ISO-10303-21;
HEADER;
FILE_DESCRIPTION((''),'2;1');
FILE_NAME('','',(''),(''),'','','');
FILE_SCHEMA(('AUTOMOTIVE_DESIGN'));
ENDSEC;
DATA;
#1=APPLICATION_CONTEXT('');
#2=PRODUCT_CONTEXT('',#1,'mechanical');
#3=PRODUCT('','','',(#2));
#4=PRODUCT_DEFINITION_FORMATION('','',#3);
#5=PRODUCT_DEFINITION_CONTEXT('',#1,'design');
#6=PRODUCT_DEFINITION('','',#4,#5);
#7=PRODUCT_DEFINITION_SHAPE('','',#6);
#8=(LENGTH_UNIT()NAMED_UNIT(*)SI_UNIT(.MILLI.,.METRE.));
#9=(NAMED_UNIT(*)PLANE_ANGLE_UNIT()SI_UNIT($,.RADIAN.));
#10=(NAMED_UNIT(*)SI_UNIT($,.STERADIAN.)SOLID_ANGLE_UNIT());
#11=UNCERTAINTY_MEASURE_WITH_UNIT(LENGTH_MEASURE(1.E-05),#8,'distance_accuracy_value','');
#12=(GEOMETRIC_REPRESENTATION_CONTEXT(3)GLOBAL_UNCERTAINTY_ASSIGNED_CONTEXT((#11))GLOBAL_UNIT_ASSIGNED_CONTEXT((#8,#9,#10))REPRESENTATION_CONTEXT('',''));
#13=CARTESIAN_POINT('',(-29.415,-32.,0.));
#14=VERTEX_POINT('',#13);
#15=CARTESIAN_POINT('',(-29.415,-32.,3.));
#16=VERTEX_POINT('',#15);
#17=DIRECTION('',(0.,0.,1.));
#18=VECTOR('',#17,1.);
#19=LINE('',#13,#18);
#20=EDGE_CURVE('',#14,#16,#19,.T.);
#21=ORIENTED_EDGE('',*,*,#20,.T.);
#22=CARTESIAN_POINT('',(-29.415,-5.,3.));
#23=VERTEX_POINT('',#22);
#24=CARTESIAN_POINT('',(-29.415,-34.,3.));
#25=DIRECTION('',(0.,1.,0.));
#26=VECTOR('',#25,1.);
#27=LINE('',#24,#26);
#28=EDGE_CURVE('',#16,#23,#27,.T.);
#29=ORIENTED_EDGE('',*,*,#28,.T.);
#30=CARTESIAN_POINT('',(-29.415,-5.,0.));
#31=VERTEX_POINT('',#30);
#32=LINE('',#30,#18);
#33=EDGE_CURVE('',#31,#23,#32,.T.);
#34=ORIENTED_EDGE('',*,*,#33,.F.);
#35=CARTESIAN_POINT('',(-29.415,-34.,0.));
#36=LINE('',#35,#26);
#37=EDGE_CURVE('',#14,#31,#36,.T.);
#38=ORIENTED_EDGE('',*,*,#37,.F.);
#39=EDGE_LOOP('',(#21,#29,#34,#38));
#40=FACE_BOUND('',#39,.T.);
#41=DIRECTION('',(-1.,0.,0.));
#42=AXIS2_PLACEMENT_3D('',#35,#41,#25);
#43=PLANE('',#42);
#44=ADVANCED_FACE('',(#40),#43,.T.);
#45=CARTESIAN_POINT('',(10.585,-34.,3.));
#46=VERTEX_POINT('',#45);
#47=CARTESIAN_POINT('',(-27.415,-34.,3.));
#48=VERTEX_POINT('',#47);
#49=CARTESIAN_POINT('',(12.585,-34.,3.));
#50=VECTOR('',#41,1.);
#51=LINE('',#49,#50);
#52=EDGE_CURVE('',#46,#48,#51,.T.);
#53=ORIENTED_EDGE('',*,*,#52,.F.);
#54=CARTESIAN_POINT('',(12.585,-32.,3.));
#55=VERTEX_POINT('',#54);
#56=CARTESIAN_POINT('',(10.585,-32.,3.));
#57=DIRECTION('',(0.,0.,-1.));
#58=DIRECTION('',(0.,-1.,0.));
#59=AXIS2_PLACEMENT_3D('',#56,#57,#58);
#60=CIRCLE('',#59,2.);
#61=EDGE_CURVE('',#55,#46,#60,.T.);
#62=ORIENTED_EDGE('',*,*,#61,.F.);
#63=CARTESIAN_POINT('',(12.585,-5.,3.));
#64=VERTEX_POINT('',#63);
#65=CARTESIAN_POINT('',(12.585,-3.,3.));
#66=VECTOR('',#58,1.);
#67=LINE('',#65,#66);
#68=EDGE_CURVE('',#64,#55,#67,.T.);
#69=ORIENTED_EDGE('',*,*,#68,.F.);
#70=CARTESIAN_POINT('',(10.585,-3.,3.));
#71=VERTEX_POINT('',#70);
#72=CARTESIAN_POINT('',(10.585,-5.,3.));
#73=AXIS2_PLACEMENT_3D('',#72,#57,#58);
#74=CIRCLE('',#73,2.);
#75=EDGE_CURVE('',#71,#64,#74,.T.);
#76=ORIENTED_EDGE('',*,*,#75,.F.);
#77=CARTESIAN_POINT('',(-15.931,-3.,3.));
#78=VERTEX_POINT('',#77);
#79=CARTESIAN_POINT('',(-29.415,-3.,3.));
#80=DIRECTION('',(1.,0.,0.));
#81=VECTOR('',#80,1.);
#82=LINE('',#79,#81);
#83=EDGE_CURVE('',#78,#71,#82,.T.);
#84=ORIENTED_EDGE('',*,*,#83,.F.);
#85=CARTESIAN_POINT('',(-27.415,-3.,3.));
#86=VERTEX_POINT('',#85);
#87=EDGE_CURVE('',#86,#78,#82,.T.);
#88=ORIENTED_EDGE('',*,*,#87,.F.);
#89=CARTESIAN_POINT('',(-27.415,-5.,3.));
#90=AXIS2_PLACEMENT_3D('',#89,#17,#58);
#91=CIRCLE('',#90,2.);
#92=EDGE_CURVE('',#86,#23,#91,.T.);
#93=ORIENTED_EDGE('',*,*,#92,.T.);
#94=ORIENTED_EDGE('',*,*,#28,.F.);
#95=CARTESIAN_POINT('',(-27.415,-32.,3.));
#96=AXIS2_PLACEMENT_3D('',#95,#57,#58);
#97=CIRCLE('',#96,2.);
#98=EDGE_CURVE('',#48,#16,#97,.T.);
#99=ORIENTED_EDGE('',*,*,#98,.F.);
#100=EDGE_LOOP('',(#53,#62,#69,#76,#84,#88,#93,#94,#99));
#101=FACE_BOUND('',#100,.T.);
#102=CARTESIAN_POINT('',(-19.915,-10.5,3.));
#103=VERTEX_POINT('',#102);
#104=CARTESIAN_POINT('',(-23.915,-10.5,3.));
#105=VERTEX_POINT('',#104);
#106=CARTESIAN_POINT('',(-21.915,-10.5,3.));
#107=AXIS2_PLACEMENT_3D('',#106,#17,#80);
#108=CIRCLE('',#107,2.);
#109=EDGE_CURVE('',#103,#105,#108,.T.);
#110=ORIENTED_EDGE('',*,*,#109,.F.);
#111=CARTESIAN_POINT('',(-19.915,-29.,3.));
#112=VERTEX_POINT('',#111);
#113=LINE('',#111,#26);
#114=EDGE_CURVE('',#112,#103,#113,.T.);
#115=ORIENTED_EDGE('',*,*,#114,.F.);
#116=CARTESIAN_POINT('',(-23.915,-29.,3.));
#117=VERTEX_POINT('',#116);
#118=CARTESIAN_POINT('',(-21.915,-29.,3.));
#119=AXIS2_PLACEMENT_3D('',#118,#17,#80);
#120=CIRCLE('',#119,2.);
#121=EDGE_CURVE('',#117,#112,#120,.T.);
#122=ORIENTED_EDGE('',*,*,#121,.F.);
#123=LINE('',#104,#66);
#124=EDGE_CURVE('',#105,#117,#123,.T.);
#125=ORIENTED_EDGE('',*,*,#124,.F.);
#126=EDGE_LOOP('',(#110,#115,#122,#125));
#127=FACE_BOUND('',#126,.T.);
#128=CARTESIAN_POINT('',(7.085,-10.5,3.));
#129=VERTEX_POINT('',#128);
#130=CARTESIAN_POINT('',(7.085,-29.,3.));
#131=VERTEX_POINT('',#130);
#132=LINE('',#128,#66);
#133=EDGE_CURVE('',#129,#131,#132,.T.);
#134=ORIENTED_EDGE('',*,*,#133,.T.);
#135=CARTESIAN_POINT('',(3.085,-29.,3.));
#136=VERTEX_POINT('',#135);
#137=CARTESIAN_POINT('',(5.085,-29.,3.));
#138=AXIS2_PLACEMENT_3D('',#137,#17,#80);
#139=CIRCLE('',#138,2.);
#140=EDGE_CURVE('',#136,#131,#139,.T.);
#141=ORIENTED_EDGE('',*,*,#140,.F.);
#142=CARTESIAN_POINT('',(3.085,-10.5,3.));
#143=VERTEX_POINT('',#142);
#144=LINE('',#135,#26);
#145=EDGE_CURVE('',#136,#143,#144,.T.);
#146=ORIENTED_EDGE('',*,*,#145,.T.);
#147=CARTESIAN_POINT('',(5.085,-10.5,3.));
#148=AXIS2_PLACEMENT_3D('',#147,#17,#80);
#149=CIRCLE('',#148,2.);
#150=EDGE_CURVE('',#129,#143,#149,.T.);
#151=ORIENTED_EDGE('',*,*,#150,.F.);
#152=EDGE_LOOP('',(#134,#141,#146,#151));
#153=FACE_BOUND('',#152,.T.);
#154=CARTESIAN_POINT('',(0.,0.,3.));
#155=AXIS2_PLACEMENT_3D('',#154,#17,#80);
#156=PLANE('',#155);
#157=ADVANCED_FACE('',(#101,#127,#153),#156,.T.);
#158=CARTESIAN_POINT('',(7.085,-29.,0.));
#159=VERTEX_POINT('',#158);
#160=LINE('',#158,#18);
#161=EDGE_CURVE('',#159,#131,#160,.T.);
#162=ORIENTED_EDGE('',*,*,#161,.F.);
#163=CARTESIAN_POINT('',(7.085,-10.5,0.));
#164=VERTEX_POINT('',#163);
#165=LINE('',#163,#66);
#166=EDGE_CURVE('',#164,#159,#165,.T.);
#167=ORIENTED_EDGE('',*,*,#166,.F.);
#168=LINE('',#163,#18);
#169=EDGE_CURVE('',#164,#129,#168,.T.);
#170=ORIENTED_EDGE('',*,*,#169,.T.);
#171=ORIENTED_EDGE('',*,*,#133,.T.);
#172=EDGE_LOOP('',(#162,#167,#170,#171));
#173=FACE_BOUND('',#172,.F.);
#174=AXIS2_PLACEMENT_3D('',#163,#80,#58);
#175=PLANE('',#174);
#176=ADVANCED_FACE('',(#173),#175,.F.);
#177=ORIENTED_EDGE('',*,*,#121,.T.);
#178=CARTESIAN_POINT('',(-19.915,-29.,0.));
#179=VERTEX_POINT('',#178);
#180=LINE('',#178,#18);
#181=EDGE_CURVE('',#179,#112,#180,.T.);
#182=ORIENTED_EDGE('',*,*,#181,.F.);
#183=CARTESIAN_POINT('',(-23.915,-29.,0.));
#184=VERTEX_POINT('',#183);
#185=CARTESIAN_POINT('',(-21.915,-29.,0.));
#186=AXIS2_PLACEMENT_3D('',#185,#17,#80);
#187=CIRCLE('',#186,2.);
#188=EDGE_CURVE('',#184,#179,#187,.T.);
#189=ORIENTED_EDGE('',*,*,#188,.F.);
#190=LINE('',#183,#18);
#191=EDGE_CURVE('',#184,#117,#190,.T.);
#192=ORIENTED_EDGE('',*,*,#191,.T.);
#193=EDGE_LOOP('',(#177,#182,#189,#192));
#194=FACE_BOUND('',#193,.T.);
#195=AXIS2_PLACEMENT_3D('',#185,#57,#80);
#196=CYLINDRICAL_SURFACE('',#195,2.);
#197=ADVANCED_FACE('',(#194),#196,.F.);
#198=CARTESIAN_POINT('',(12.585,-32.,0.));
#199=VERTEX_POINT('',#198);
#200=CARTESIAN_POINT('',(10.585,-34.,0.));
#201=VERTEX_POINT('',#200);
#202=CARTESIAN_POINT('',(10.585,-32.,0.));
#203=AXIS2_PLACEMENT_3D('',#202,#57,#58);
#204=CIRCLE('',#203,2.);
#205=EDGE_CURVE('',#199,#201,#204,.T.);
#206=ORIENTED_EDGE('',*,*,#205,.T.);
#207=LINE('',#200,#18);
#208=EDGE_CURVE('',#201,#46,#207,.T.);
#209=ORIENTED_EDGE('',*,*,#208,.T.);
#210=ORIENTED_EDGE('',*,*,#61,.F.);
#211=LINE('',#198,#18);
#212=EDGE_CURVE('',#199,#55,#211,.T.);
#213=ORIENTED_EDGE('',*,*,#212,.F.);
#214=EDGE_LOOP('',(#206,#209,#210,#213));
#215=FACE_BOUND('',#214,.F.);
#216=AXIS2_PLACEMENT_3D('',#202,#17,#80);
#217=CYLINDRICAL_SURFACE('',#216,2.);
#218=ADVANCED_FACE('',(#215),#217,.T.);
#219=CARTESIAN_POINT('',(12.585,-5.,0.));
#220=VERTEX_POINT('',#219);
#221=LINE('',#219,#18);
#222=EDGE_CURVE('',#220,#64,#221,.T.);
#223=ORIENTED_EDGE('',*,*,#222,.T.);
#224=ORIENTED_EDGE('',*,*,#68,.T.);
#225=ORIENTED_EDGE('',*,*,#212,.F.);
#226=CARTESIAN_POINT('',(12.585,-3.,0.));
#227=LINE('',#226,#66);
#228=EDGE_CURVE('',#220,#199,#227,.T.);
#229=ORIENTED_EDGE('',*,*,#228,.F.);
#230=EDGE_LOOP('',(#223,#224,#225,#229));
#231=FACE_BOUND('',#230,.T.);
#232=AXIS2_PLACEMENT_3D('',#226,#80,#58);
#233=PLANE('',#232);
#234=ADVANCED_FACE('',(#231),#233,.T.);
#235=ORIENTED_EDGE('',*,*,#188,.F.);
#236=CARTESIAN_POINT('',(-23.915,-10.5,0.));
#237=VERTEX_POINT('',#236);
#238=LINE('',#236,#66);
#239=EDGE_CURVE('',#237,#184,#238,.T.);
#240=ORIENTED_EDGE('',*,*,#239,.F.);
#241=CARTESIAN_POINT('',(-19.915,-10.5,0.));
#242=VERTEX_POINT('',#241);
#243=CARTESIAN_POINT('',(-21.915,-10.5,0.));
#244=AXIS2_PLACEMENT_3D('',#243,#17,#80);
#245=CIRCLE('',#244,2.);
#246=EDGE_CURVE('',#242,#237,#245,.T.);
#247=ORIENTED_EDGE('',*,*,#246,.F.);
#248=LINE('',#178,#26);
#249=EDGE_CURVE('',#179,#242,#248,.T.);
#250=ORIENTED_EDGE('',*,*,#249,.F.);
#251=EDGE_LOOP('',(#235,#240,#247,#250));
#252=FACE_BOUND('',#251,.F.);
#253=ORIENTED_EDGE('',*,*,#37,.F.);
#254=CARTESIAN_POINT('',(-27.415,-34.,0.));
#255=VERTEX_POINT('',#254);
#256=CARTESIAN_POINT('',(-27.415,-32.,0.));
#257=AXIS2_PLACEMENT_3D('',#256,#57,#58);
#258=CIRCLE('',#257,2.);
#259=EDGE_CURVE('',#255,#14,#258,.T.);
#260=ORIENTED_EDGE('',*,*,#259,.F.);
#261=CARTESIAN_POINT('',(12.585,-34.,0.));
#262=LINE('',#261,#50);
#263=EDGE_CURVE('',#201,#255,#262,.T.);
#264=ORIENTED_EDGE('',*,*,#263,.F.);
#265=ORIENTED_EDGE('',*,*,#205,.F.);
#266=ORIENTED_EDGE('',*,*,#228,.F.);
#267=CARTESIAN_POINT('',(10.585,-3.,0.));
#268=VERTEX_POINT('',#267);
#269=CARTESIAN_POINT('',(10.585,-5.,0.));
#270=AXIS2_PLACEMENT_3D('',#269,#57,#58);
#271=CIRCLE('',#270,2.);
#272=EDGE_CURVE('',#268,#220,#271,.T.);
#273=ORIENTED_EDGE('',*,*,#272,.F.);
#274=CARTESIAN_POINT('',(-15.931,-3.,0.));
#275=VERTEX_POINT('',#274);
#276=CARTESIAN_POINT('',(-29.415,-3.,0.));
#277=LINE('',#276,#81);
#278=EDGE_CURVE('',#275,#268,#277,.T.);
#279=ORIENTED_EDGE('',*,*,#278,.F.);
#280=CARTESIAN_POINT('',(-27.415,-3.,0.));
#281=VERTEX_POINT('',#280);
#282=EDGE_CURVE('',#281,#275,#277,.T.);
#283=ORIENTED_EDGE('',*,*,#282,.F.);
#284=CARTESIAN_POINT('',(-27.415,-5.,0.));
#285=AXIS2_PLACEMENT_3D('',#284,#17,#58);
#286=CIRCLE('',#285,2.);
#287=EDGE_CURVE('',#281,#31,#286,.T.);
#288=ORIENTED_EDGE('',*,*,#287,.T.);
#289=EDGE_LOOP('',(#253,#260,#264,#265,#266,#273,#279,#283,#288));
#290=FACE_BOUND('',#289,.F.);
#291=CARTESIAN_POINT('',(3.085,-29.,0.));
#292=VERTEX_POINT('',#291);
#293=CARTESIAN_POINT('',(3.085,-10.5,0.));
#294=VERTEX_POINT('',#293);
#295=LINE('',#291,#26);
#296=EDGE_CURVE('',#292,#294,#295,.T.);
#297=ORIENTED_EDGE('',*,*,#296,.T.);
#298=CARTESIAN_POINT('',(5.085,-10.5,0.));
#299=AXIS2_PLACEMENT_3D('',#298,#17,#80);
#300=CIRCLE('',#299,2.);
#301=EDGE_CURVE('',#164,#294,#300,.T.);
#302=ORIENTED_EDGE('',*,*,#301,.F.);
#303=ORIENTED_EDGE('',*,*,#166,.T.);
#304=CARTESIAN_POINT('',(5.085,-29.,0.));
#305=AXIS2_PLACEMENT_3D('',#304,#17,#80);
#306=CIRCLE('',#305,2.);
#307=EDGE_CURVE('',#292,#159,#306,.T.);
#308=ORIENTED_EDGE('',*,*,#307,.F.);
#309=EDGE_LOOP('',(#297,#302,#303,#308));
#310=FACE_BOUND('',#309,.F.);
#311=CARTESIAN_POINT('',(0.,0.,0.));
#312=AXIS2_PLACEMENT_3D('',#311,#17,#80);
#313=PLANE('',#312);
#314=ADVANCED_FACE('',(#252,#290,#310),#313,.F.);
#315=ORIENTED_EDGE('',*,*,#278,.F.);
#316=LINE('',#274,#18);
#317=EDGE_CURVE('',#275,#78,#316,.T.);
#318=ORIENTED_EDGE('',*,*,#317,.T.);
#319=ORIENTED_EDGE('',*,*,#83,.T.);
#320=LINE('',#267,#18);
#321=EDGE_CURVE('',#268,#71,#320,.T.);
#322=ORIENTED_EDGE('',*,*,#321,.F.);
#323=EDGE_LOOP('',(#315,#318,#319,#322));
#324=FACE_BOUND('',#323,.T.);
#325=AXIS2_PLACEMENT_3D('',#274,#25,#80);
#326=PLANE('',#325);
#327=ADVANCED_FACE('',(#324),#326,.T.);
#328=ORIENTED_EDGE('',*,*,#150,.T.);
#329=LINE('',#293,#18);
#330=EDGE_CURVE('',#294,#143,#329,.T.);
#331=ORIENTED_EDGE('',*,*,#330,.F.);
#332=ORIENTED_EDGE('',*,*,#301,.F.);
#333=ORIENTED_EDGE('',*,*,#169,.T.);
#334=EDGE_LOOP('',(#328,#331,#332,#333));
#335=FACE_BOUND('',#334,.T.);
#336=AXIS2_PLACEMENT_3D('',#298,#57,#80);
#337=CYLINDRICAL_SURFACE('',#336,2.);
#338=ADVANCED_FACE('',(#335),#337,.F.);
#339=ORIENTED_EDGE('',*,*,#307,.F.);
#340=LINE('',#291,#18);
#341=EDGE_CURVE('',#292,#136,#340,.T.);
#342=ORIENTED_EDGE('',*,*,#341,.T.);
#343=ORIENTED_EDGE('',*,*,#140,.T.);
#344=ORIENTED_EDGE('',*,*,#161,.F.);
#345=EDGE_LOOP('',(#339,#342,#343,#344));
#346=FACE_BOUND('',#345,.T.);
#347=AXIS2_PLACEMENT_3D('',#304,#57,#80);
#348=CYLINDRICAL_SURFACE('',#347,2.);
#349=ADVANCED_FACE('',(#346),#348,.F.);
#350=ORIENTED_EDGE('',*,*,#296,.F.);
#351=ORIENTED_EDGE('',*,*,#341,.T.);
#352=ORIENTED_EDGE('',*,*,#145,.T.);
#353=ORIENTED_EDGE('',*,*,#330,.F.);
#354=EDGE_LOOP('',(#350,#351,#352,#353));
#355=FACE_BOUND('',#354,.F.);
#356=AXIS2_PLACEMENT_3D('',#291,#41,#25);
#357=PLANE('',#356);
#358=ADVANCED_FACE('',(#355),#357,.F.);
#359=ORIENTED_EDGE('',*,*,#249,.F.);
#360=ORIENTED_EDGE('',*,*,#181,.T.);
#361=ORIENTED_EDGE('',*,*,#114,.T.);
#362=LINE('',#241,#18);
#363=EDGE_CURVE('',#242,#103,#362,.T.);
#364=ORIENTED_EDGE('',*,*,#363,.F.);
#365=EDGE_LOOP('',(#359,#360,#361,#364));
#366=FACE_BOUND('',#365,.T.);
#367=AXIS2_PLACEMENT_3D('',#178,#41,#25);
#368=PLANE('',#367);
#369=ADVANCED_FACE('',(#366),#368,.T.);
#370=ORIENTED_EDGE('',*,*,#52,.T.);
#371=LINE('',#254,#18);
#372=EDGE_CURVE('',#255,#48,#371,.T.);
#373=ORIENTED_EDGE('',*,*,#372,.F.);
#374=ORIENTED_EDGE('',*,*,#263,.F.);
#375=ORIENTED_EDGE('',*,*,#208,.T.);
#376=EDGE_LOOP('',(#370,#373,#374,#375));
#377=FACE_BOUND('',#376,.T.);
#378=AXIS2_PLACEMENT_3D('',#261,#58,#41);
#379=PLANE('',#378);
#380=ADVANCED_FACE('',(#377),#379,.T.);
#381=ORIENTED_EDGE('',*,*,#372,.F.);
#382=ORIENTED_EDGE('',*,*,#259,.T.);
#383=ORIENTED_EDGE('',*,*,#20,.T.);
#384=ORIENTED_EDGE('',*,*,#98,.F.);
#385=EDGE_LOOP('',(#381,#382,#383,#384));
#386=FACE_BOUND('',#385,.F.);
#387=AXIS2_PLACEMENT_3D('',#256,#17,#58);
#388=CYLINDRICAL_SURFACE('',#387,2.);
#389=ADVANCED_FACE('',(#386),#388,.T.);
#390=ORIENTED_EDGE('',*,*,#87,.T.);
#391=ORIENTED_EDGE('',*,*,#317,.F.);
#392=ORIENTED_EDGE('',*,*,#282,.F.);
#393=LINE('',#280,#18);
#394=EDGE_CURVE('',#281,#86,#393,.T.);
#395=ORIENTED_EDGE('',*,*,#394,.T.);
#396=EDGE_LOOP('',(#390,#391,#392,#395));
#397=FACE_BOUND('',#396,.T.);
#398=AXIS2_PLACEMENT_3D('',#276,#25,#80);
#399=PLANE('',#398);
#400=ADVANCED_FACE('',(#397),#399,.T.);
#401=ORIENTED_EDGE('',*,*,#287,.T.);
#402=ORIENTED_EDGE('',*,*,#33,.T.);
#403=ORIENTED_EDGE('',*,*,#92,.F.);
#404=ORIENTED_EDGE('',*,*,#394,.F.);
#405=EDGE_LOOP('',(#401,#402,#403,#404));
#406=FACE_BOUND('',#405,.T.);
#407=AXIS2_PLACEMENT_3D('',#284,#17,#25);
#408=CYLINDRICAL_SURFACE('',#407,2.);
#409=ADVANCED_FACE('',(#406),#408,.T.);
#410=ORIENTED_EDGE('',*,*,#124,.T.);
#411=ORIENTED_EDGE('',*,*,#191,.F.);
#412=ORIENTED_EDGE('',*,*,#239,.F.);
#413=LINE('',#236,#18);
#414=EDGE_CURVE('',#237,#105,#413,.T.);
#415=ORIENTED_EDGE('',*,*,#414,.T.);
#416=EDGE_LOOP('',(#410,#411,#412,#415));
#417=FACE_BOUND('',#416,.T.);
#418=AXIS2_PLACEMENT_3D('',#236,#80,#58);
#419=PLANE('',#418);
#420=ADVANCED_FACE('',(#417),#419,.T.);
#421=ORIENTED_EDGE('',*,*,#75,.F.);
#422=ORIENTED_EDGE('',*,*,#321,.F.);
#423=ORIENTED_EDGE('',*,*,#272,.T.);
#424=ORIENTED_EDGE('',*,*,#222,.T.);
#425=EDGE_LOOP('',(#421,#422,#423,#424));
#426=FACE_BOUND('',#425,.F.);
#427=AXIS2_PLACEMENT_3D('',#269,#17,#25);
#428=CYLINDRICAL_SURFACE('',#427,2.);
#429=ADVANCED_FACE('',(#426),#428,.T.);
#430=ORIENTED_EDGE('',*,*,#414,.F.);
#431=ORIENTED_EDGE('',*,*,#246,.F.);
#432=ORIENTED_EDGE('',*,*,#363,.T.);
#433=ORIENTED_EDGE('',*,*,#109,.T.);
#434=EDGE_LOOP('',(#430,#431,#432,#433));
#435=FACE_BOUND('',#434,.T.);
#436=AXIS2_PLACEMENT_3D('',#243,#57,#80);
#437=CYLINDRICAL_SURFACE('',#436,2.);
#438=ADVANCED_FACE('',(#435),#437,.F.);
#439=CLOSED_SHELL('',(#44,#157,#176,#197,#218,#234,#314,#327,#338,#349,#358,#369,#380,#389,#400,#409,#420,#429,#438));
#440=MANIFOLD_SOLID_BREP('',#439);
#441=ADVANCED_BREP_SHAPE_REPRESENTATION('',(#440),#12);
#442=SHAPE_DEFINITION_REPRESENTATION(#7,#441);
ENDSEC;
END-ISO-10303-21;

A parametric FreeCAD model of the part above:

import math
import FreeCAD as App
import Part
import Sketcher
Q = App.Units.Quantity


def edges_at(feature, points):
    """Names of the edges that pass closest to the given points."""
    edges = feature.Shape.Edges
    near = lambda p: min(range(len(edges)), key=lambda i: edges[i].distToShape(Part.Vertex(*p))[0])
    return sorted({f"Edge{near(p) + 1}" for p in points})


def add_polygon(sketch, points):
    """Adds a closed chain of lines whose ends are joined by coincident constraints."""
    first, n = sketch.GeometryCount, len(points)
    for a, b in zip(points, points[1:] + points[:1]):
        sketch.addGeometry(Part.LineSegment(App.Vector(*a, 0), App.Vector(*b, 0)), False)
    for i in range(n):
        sketch.addConstraint(Sketcher.Constraint("Coincident", first + i, 2, first + (i + 1) % n, 1))

doc = App.newDocument("Part")
body = doc.addObject("PartDesign::Body", "Body")

# Sketch on XY plane
sketch1 = body.newObject("Sketcher::SketchObject", "Sketch")
sketch1.AttachmentSupport = (doc.getObject("XY_Plane"), [""])
sketch1.MapMode = "FlatFace"
add_polygon(sketch1, [(12.6, -3), (-29.4, -3), (-29.4, -34), (12.6, -34)])  # lines 0-3
sketch1.addGeometry(Part.LineSegment(App.Vector(-19.9, -10.5, 0), App.Vector(-19.9, -29, 0)), False)  # 4
sketch1.addGeometry(Part.ArcOfCircle(Part.Circle(App.Vector(-21.9, -29, 0), App.Vector(0, 0, 1), 2), math.radians(180), math.radians(360)), False)  # 5
sketch1.addGeometry(Part.LineSegment(App.Vector(-23.9, -29, 0), App.Vector(-23.9, -10.5, 0)), False)  # 6
sketch1.addGeometry(Part.ArcOfCircle(Part.Circle(App.Vector(-21.9, -10.5, 0), App.Vector(0, 0, 1), 2), math.radians(0), math.radians(180)), False)  # 7
sketch1.addGeometry(Part.LineSegment(App.Vector(7.1, -10.5, 0), App.Vector(7.1, -29, 0)), False)  # 8
sketch1.addGeometry(Part.ArcOfCircle(Part.Circle(App.Vector(5.1, -29, 0), App.Vector(0, 0, 1), 2), math.radians(180), math.radians(360)), False)  # 9
sketch1.addGeometry(Part.LineSegment(App.Vector(3.1, -29, 0), App.Vector(3.1, -10.5, 0)), False)  # 10
sketch1.addGeometry(Part.ArcOfCircle(Part.Circle(App.Vector(5.1, -10.5, 0), App.Vector(0, 0, 1), 2), math.radians(0), math.radians(180)), False)  # 11
sketch1.addConstraint([
    Sketcher.Constraint("Tangent", 4, 2, 5, 2),
    Sketcher.Constraint("Tangent", 5, 1, 6, 1),
    Sketcher.Constraint("Tangent", 6, 2, 7, 2),
    Sketcher.Constraint("Tangent", 7, 1, 4, 1),
    Sketcher.Constraint("Tangent", 8, 2, 9, 2),
    Sketcher.Constraint("Tangent", 9, 1, 10, 1),
    Sketcher.Constraint("Tangent", 10, 2, 11, 2),
    Sketcher.Constraint("Tangent", 11, 1, 8, 1),
    Sketcher.Constraint("Horizontal", 0),
    Sketcher.Constraint("Vertical", 1),
    Sketcher.Constraint("Horizontal", 2),
    Sketcher.Constraint("Vertical", 3),
    Sketcher.Constraint("Vertical", 4),
    Sketcher.Constraint("Vertical", 6),
    Sketcher.Constraint("Vertical", 8),
    Sketcher.Constraint("Vertical", 10),
    Sketcher.Constraint("Equal", 7, 9),
    Sketcher.Constraint("Horizontal", 5, 3, 9, 3),
    Sketcher.Constraint("Horizontal", 7, 3, 11, 3),
    Sketcher.Constraint("Radius", 5, Q("2 mm")),
    Sketcher.Constraint("DistanceX", 0, 2, 0, 1, Q("42 mm")),
    Sketcher.Constraint("DistanceY", 1, 2, 1, 1, Q("31 mm")),
    Sketcher.Constraint("DistanceY", 4, 2, 4, 1, Q("18.5 mm")),
    Sketcher.Constraint("DistanceY", 5, 3, -1, 1, Q("29 mm")),
    Sketcher.Constraint("DistanceY", 0, 2, -1, 1, Q("3 mm")),
    Sketcher.Constraint("DistanceX", 5, 3, 9, 3, Q("27 mm")),
    Sketcher.Constraint("DistanceX", 0, 2, 7, 3, Q("7.5 mm")),
    Sketcher.Constraint("DistanceX", 5, 3, -1, 1, Q("21.915 mm")),
])
pad1 = body.newObject("PartDesign::Pad", "Pad")
pad1.Profile = sketch1
pad1.Length = 3
doc.recompute()

fillet = body.newObject("PartDesign::Fillet", "Fillet")
fillet.Base = (pad1, edges_at(pad1, [
    (-29.415, -34, 1.5),
    (12.585, -34, 1.5),
    (-29.415, -3, 1.5),
    (12.585, -3, 1.5),
]))
fillet.Radius = 2

doc.recompute()
